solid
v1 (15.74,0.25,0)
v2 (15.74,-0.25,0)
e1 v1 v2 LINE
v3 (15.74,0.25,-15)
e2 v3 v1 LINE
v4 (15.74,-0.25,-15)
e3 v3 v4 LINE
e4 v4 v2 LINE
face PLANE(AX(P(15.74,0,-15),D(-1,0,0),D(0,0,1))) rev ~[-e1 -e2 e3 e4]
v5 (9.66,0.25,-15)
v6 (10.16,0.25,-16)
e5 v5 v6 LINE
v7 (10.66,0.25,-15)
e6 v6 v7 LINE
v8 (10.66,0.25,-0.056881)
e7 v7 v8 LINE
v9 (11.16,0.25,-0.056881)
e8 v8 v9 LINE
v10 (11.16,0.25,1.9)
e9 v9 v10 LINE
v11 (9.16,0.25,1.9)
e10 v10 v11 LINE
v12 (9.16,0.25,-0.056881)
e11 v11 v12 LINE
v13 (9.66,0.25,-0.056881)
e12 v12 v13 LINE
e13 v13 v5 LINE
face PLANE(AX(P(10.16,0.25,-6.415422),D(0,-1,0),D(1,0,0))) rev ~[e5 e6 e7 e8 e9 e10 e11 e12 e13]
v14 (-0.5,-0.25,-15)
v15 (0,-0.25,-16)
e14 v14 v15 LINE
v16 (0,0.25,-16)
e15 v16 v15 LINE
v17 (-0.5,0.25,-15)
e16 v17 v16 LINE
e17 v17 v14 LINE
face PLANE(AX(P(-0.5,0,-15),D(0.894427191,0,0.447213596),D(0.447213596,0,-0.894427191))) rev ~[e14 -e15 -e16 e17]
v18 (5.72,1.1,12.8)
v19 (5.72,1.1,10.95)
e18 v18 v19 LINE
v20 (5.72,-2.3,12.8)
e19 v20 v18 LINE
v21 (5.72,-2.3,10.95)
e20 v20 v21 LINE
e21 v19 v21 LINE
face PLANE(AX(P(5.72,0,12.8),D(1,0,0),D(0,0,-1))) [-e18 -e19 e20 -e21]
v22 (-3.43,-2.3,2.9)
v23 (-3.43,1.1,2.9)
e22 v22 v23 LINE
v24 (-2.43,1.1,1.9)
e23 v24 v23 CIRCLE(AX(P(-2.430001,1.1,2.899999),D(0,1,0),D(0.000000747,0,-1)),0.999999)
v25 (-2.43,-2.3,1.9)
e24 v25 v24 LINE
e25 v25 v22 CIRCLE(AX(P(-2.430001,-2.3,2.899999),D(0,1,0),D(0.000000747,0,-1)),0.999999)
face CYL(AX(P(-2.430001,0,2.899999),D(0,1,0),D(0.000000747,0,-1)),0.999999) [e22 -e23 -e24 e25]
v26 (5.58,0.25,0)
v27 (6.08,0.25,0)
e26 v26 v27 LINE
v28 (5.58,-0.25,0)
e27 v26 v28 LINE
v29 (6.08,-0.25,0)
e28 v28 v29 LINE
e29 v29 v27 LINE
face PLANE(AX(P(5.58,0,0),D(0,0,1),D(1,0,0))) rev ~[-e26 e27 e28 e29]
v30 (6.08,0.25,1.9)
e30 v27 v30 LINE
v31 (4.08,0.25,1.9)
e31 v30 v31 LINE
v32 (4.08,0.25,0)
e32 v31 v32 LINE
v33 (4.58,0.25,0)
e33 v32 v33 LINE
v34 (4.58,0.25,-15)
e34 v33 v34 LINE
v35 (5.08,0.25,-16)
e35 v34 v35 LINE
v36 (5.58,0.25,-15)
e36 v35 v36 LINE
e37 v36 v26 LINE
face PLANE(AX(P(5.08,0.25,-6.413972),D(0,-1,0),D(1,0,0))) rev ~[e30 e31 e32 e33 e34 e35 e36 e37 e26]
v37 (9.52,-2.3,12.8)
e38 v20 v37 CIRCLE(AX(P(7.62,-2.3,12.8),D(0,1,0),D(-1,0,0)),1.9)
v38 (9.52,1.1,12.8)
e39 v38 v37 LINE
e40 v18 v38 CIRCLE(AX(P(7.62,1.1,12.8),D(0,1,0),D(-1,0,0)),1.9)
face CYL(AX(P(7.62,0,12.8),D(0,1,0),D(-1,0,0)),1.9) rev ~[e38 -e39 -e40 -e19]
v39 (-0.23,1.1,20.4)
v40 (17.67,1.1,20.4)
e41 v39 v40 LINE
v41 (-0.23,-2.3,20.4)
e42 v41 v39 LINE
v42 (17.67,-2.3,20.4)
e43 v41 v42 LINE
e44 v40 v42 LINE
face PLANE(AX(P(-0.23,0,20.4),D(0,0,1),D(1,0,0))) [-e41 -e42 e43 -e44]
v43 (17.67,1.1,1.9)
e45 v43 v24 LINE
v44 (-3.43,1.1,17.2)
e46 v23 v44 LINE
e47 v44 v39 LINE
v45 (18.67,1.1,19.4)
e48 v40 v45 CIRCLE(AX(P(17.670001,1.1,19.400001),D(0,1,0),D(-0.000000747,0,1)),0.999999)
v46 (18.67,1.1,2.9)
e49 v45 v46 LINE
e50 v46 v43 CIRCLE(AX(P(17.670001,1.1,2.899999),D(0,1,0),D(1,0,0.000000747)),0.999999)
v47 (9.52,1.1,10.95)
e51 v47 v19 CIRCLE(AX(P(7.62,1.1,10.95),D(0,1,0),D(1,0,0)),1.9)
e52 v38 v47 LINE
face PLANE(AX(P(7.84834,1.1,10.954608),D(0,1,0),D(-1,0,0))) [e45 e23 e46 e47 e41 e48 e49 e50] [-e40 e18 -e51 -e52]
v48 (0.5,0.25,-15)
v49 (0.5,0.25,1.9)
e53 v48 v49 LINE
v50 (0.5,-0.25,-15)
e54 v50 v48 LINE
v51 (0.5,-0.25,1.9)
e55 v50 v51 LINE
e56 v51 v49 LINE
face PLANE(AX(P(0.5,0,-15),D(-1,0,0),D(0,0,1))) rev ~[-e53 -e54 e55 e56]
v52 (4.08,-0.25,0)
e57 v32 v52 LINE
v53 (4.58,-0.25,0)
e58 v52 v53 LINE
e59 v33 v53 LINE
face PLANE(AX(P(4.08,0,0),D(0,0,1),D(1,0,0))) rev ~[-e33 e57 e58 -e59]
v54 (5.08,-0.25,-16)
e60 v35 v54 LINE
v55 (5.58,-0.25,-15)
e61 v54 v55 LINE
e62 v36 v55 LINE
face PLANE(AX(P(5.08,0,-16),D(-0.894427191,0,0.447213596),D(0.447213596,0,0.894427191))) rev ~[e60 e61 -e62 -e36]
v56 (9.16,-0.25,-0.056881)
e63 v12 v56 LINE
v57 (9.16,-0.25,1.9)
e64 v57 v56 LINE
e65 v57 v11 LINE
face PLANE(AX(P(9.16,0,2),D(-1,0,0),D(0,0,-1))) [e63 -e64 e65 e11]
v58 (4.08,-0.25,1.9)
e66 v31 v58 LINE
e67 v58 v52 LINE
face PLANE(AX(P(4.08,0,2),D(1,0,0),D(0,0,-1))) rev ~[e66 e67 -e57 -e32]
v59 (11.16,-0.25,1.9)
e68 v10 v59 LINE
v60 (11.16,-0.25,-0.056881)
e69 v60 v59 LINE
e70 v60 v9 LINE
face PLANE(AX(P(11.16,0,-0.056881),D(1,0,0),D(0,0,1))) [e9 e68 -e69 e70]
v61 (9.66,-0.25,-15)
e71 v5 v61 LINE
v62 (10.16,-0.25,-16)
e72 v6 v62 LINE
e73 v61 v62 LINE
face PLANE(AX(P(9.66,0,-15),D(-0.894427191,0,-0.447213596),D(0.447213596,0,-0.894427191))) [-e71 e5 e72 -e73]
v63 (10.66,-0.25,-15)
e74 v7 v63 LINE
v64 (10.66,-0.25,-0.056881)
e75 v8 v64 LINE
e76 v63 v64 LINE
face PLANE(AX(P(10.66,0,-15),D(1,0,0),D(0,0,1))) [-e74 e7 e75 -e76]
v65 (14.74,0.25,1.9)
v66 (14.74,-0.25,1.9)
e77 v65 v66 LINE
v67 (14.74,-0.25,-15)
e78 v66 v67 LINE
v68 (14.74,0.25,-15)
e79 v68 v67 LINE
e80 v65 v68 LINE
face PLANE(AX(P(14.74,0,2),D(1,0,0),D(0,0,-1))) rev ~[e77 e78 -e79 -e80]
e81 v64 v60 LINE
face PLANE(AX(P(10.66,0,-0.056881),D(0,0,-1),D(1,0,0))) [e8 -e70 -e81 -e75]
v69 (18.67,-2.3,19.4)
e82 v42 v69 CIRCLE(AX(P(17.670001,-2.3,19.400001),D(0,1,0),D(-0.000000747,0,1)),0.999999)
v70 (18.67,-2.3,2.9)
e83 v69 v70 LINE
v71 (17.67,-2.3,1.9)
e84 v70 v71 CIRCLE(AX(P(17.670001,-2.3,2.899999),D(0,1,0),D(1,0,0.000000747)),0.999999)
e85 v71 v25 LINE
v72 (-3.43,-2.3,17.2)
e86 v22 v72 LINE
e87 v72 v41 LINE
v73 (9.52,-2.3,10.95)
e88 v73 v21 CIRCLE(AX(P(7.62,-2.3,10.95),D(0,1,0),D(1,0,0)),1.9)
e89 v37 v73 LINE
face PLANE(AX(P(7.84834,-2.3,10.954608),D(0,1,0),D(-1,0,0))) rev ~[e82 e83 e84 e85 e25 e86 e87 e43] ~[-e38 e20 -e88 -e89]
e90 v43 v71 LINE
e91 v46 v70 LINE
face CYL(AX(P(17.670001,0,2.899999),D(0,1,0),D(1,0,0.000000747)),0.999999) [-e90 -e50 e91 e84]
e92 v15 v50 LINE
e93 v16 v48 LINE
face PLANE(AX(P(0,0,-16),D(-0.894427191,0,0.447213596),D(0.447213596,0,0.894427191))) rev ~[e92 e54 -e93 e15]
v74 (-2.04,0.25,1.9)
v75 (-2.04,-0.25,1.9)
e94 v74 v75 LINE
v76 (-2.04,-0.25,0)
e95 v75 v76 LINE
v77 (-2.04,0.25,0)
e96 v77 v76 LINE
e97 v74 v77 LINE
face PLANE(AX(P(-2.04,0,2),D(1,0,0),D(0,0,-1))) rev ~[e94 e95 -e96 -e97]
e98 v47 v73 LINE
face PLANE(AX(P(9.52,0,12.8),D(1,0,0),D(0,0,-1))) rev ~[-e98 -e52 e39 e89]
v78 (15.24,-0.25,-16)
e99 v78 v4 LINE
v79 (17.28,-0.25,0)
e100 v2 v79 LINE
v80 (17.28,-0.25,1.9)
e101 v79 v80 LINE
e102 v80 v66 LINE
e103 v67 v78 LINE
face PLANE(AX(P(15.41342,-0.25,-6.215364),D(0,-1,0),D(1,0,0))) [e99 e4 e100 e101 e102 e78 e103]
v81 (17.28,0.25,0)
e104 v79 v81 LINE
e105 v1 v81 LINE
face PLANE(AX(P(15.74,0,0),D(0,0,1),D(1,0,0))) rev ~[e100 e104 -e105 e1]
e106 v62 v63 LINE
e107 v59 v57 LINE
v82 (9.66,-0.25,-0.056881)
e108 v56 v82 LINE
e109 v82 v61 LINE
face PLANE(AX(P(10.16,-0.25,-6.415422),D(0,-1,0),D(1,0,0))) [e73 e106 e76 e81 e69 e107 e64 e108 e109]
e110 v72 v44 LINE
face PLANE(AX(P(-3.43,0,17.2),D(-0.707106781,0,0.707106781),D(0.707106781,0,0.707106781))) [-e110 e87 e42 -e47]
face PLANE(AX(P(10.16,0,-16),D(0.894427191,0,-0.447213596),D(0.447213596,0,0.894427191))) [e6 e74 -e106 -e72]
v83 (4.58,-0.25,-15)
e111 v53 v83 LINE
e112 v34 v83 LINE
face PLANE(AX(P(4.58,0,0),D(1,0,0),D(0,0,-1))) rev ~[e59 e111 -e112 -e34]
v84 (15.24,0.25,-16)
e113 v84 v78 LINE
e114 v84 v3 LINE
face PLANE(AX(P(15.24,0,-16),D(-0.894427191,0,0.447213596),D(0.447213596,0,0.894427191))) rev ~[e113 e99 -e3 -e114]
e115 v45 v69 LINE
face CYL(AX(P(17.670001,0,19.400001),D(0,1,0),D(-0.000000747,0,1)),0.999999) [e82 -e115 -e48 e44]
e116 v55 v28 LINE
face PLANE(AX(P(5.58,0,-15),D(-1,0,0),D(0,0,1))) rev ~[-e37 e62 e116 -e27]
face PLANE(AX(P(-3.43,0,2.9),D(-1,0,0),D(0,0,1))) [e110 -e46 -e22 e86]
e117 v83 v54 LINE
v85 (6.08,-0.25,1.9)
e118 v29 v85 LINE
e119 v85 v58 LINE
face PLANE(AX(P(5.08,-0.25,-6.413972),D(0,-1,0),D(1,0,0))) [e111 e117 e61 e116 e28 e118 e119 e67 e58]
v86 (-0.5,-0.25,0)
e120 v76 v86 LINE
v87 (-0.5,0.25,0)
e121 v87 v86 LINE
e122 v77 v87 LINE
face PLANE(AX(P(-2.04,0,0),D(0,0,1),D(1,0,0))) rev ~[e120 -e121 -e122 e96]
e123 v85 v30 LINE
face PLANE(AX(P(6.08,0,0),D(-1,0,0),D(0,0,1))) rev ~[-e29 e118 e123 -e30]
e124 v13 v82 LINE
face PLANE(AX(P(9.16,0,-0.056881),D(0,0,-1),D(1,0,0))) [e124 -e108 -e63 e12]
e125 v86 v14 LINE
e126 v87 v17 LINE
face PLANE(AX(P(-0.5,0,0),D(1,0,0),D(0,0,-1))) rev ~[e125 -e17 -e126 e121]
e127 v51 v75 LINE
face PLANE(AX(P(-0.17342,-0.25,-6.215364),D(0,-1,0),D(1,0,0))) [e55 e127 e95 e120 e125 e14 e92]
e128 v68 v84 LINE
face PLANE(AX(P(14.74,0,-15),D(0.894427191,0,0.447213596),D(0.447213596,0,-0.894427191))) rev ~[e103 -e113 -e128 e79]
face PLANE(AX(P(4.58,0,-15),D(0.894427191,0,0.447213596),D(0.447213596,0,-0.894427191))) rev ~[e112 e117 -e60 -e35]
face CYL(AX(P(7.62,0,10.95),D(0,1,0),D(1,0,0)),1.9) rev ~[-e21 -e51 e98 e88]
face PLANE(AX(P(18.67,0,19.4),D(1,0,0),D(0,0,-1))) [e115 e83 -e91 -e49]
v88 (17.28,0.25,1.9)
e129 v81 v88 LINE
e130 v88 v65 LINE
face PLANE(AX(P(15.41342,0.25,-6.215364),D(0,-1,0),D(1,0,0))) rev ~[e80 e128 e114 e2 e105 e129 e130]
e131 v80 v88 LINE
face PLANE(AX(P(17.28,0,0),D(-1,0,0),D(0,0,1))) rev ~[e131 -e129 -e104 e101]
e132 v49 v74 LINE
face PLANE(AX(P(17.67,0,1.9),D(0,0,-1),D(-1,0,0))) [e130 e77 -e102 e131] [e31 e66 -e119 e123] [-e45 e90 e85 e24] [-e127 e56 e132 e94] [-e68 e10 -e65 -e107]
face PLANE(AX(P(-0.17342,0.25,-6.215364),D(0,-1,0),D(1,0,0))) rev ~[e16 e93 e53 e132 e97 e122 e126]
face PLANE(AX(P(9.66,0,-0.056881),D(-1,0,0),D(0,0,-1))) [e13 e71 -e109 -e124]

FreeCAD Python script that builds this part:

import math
import FreeCAD as App
import Part
import Sketcher
Q = App.Units.Quantity

doc = App.newDocument("Part")
body = doc.addObject("PartDesign::Body", "Body")
body.AllowCompound = True

# Sketch on XZ plane
sketch1 = body.newObject("Sketcher::SketchObject", "Sketch")
sketch1.AttachmentSupport = (doc.getObject("XZ_Plane"), [""])
sketch1.MapMode = "FlatFace"
sketch1.addGeometry(Part.LineSegment(App.Vector(-2, 2, 0), App.Vector(-2, 0, 0)), False)
sketch1.addGeometry(Part.LineSegment(App.Vector(-2, 0, 0), App.Vector(-0.5, 0, 0)), False)
sketch1.addGeometry(Part.LineSegment(App.Vector(-0.5, 0, 0), App.Vector(-0.5, -15, 0)), False)
sketch1.addGeometry(Part.LineSegment(App.Vector(-0.5, -15, 0), App.Vector(0, -16, 0)), False)
sketch1.addGeometry(Part.LineSegment(App.Vector(0, -16, 0), App.Vector(0.5, -15, 0)), False)
sketch1.addGeometry(Part.LineSegment(App.Vector(0.5, -15, 0), App.Vector(0.5, 2, 0)), False)
sketch1.addGeometry(Part.LineSegment(App.Vector(0.5, 2, 0), App.Vector(-2, 2, 0)), False)
sketch1.addGeometry(Part.LineSegment(App.Vector(14.7, 2, 0), App.Vector(14.7, -15, 0)), False)
sketch1.addGeometry(Part.LineSegment(App.Vector(14.7, -15, 0), App.Vector(15.2, -16, 0)), False)
sketch1.addGeometry(Part.LineSegment(App.Vector(15.2, -16, 0), App.Vector(15.7, -15, 0)), False)
sketch1.addGeometry(Part.LineSegment(App.Vector(15.7, -15, 0), App.Vector(15.7, 0, 0)), False)
sketch1.addGeometry(Part.LineSegment(App.Vector(15.7, 0, 0), App.Vector(17.3, 0, 0)), False)
sketch1.addGeometry(Part.LineSegment(App.Vector(17.3, 0, 0), App.Vector(17.3, 2, 0)), False)
sketch1.addGeometry(Part.LineSegment(App.Vector(17.3, 2, 0), App.Vector(14.7, 2, 0)), False)
sketch1.addGeometry(Part.LineSegment(App.Vector(4.1, 2, 0), App.Vector(4.1, 0, 0)), False)
sketch1.addGeometry(Part.LineSegment(App.Vector(4.1, 0, 0), App.Vector(4.6, 0, 0)), False)
sketch1.addGeometry(Part.LineSegment(App.Vector(4.6, 0, 0), App.Vector(4.6, -15, 0)), False)
sketch1.addGeometry(Part.LineSegment(App.Vector(4.6, -15, 0), App.Vector(5.1, -16, 0)), False)
sketch1.addGeometry(Part.LineSegment(App.Vector(5.1, -16, 0), App.Vector(5.6, -15, 0)), False)
sketch1.addGeometry(Part.LineSegment(App.Vector(5.6, -15, 0), App.Vector(5.6, 0, 0)), False)
sketch1.addGeometry(Part.LineSegment(App.Vector(5.6, 0, 0), App.Vector(6.1, 0, 0)), False)
sketch1.addGeometry(Part.LineSegment(App.Vector(6.1, 0, 0), App.Vector(6.1, 2, 0)), False)
sketch1.addGeometry(Part.LineSegment(App.Vector(6.1, 2, 0), App.Vector(4.1, 2, 0)), False)
sketch1.addGeometry(Part.LineSegment(App.Vector(9.2, 2, 0), App.Vector(9.2, -0.1, 0)), False)
sketch1.addGeometry(Part.LineSegment(App.Vector(9.2, -0.1, 0), App.Vector(9.7, -0.1, 0)), False)
sketch1.addGeometry(Part.LineSegment(App.Vector(9.7, -0.1, 0), App.Vector(9.7, -15, 0)), False)
sketch1.addGeometry(Part.LineSegment(App.Vector(9.7, -15, 0), App.Vector(10.2, -16, 0)), False)
sketch1.addGeometry(Part.LineSegment(App.Vector(10.2, -16, 0), App.Vector(10.7, -15, 0)), False)
sketch1.addGeometry(Part.LineSegment(App.Vector(10.7, -15, 0), App.Vector(10.7, -0.1, 0)), False)
sketch1.addGeometry(Part.LineSegment(App.Vector(10.7, -0.1, 0), App.Vector(11.2, -0.1, 0)), False)
sketch1.addGeometry(Part.LineSegment(App.Vector(11.2, -0.1, 0), App.Vector(11.2, 2, 0)), False)
sketch1.addGeometry(Part.LineSegment(App.Vector(11.2, 2, 0), App.Vector(9.2, 2, 0)), False)
sketch1.addConstraint(Sketcher.Constraint("Coincident", 0, 2, 1, 1))
sketch1.addConstraint(Sketcher.Constraint("Coincident", 1, 2, 2, 1))
sketch1.addConstraint(Sketcher.Constraint("Coincident", 2, 2, 3, 1))
sketch1.addConstraint(Sketcher.Constraint("Coincident", 3, 2, 4, 1))
sketch1.addConstraint(Sketcher.Constraint("Coincident", 4, 2, 5, 1))
sketch1.addConstraint(Sketcher.Constraint("Coincident", 5, 2, 6, 1))
sketch1.addConstraint(Sketcher.Constraint("Coincident", 6, 2, 0, 1))
sketch1.addConstraint(Sketcher.Constraint("Coincident", 7, 2, 8, 1))
sketch1.addConstraint(Sketcher.Constraint("Coincident", 8, 2, 9, 1))
sketch1.addConstraint(Sketcher.Constraint("Coincident", 9, 2, 10, 1))
sketch1.addConstraint(Sketcher.Constraint("Coincident", 10, 2, 11, 1))
sketch1.addConstraint(Sketcher.Constraint("Coincident", 11, 2, 12, 1))
sketch1.addConstraint(Sketcher.Constraint("Coincident", 12, 2, 13, 1))
sketch1.addConstraint(Sketcher.Constraint("Coincident", 13, 2, 7, 1))
sketch1.addConstraint(Sketcher.Constraint("Coincident", 14, 2, 15, 1))
sketch1.addConstraint(Sketcher.Constraint("Coincident", 15, 2, 16, 1))
sketch1.addConstraint(Sketcher.Constraint("Coincident", 16, 2, 17, 1))
sketch1.addConstraint(Sketcher.Constraint("Coincident", 17, 2, 18, 1))
sketch1.addConstraint(Sketcher.Constraint("Coincident", 18, 2, 19, 1))
sketch1.addConstraint(Sketcher.Constraint("Coincident", 19, 2, 20, 1))
sketch1.addConstraint(Sketcher.Constraint("Coincident", 20, 2, 21, 1))
sketch1.addConstraint(Sketcher.Constraint("Coincident", 21, 2, 22, 1))
sketch1.addConstraint(Sketcher.Constraint("Coincident", 22, 2, 14, 1))
sketch1.addConstraint(Sketcher.Constraint("Coincident", 23, 2, 24, 1))
sketch1.addConstraint(Sketcher.Constraint("Coincident", 24, 2, 25, 1))
sketch1.addConstraint(Sketcher.Constraint("Coincident", 25, 2, 26, 1))
sketch1.addConstraint(Sketcher.Constraint("Coincident", 26, 2, 27, 1))
sketch1.addConstraint(Sketcher.Constraint("Coincident", 27, 2, 28, 1))
sketch1.addConstraint(Sketcher.Constraint("Coincident", 28, 2, 29, 1))
sketch1.addConstraint(Sketcher.Constraint("Coincident", 29, 2, 30, 1))
sketch1.addConstraint(Sketcher.Constraint("Coincident", 30, 2, 31, 1))
sketch1.addConstraint(Sketcher.Constraint("Coincident", 31, 2, 23, 1))
sketch1.addConstraint(Sketcher.Constraint("Vertical", 0))
sketch1.addConstraint(Sketcher.Constraint("Horizontal", 1))
sketch1.addConstraint(Sketcher.Constraint("Vertical", 2))
sketch1.addConstraint(Sketcher.Constraint("Vertical", 5))
sketch1.addConstraint(Sketcher.Constraint("Horizontal", 6))
sketch1.addConstraint(Sketcher.Constraint("Vertical", 7))
sketch1.addConstraint(Sketcher.Constraint("Vertical", 10))
sketch1.addConstraint(Sketcher.Constraint("Horizontal", 11))
sketch1.addConstraint(Sketcher.Constraint("Vertical", 12))
sketch1.addConstraint(Sketcher.Constraint("Horizontal", 13))
sketch1.addConstraint(Sketcher.Constraint("Vertical", 14))
sketch1.addConstraint(Sketcher.Constraint("Horizontal", 15))
sketch1.addConstraint(Sketcher.Constraint("Vertical", 16))
sketch1.addConstraint(Sketcher.Constraint("Vertical", 19))
sketch1.addConstraint(Sketcher.Constraint("Horizontal", 20))
sketch1.addConstraint(Sketcher.Constraint("Vertical", 21))
sketch1.addConstraint(Sketcher.Constraint("Horizontal", 22))
sketch1.addConstraint(Sketcher.Constraint("Vertical", 23))
sketch1.addConstraint(Sketcher.Constraint("Horizontal", 24))
sketch1.addConstraint(Sketcher.Constraint("Vertical", 25))
sketch1.addConstraint(Sketcher.Constraint("Vertical", 28))
sketch1.addConstraint(Sketcher.Constraint("Horizontal", 29))
sketch1.addConstraint(Sketcher.Constraint("Vertical", 30))
sketch1.addConstraint(Sketcher.Constraint("Horizontal", 31))
sketch1.addConstraint(Sketcher.Constraint("Symmetric", 2, 2, 4, 2, -2))
sketch1.addConstraint(Sketcher.Constraint("PointOnObject", 0, 2, -1))
sketch1.addConstraint(Sketcher.Constraint("PointOnObject", 3, 2, -2))
sketch1.addConstraint(Sketcher.Constraint("PointOnObject", 10, 2, -1))
sketch1.addConstraint(Sketcher.Constraint("PointOnObject", 14, 2, -1))
sketch1.addConstraint(Sketcher.Constraint("PointOnObject", 19, 2, -1))
sketch1.addConstraint(Sketcher.Constraint("Parallel", 3, 8))
sketch1.addConstraint(Sketcher.Constraint("Parallel", 4, 9))
sketch1.addConstraint(Sketcher.Constraint("Parallel", 8, 17))
sketch1.addConstraint(Sketcher.Constraint("Parallel", 9, 18))
sketch1.addConstraint(Sketcher.Constraint("Parallel", 17, 26))
sketch1.addConstraint(Sketcher.Constraint("Parallel", 18, 27))
sketch1.addConstraint(Sketcher.Constraint("Horizontal", 4, 2, 7, 2))
sketch1.addConstraint(Sketcher.Constraint("Horizontal", 3, 2, 8, 2))
sketch1.addConstraint(Sketcher.Constraint("Horizontal", 7, 2, 9, 2))
sketch1.addConstraint(Sketcher.Constraint("Horizontal", 6, 2, 12, 2))
sketch1.addConstraint(Sketcher.Constraint("Horizontal", 9, 2, 16, 2))
sketch1.addConstraint(Sketcher.Constraint("Horizontal", 8, 2, 17, 2))
sketch1.addConstraint(Sketcher.Constraint("Horizontal", 16, 2, 18, 2))
sketch1.addConstraint(Sketcher.Constraint("Horizontal", 13, 2, 21, 2))
sketch1.addConstraint(Sketcher.Constraint("Horizontal", 18, 2, 25, 2))
sketch1.addConstraint(Sketcher.Constraint("Horizontal", 17, 2, 26, 2))
sketch1.addConstraint(Sketcher.Constraint("Horizontal", 25, 2, 27, 2))
sketch1.addConstraint(Sketcher.Constraint("Horizontal", 24, 2, 28, 2))
sketch1.addConstraint(Sketcher.Constraint("Horizontal", 22, 2, 30, 2))
sketch1.addConstraint(Sketcher.Constraint("Equal", 1, 11))
sketch1.addConstraint(Sketcher.Constraint("Equal", 15, 20))
sketch1.addConstraint(Sketcher.Constraint("Equal", 20, 24))
sketch1.addConstraint(Sketcher.Constraint("Equal", 24, 29))
sketch1.addConstraint(Sketcher.Constraint("Equal", 31, 0))
sketch1.addConstraint(Sketcher.Constraint("DistanceX", 22, 2, 22, 1, 2.0))
sketch1.addConstraint(Sketcher.Constraint("DistanceY", 2, 2, 2, 1, 15.0))
sketch1.addConstraint(Sketcher.Constraint("DistanceX", 15, 1, 15, 2, 0.5))
sketch1.addConstraint(Sketcher.Constraint("DistanceY", 3, 2, -1, 1, 16.0))
sketch1.addConstraint(Sketcher.Constraint("DistanceX", 1, 1, 1, 2, 1.54))
sketch1.addConstraint(Sketcher.Constraint("DistanceX", -1, 1, 7, 2, 14.74))
sketch1.addConstraint(Sketcher.Constraint("DistanceX", -1, 1, 14, 2, 4.08))
sketch1.addConstraint(Sketcher.Constraint("DistanceX", -1, 1, 23, 2, 9.16))
sketch1.addConstraint(Sketcher.Constraint("DistanceY", 23, 2, 23, 1, 2.056881))
pad1 = body.newObject("PartDesign::Pad", "Pad")
pad1.Profile = sketch1
pad1.Length = 0.5
pad1.Midplane = True
body2 = doc.addObject("PartDesign::Body", "Body001")

# Sketch on XZ plane
sketch2 = body2.newObject("Sketcher::SketchObject", "Sketch001")
sketch2.AttachmentSupport = (doc.getObject("XZ_Plane001"), [""])
sketch2.MapMode = "FlatFace"
sketch2.addGeometry(Part.LineSegment(App.Vector(17.7, 1.9, 0), App.Vector(-2.4, 1.9, 0)), False)
sketch2.addGeometry(Part.ArcOfCircle(Part.Circle(App.Vector(-2.4, 2.9, 0), App.Vector(0, 0, 1), 1), math.radians(180), math.radians(270)), False)
sketch2.addGeometry(Part.LineSegment(App.Vector(-3.4, 2.9, 0), App.Vector(-3.4, 17.2, 0)), False)
sketch2.addGeometry(Part.LineSegment(App.Vector(-3.4, 17.2, 0), App.Vector(-0.2, 20.4, 0)), False)
sketch2.addGeometry(Part.LineSegment(App.Vector(-0.2, 20.4, 0), App.Vector(17.7, 20.4, 0)), False)
sketch2.addGeometry(Part.ArcOfCircle(Part.Circle(App.Vector(17.7, 19.4, 0), App.Vector(0, 0, 1), 1), math.radians(0), math.radians(90)), False)
sketch2.addGeometry(Part.LineSegment(App.Vector(18.7, 19.4, 0), App.Vector(18.7, 2.9, 0)), False)
sketch2.addGeometry(Part.ArcOfCircle(Part.Circle(App.Vector(17.7, 2.9, 0), App.Vector(0, 0, 1), 1), math.radians(-90), math.radians(0)), False)
sketch2.addGeometry(Part.ArcOfCircle(Part.Circle(App.Vector(7.6, 12.8, 0), App.Vector(0, 0, 1), 1.9), math.radians(0), math.radians(180)), False)
sketch2.addGeometry(Part.LineSegment(App.Vector(5.7, 12.8, 0), App.Vector(5.7, 10.9, 0)), False)
sketch2.addGeometry(Part.ArcOfCircle(Part.Circle(App.Vector(7.6, 10.9, 0), App.Vector(0, 0, 1), 1.9), math.radians(180), math.radians(360)), False)
sketch2.addGeometry(Part.LineSegment(App.Vector(9.5, 10.9, 0), App.Vector(9.5, 12.8, 0)), False)
sketch2.addConstraint(Sketcher.Constraint("Tangent", 0, 2, 1, 2))
sketch2.addConstraint(Sketcher.Constraint("Tangent", 1, 1, 2, 1))
sketch2.addConstraint(Sketcher.Constraint("Coincident", 2, 2, 3, 1))
sketch2.addConstraint(Sketcher.Constraint("Coincident", 3, 2, 4, 1))
sketch2.addConstraint(Sketcher.Constraint("Tangent", 4, 2, 5, 2))
sketch2.addConstraint(Sketcher.Constraint("Tangent", 5, 1, 6, 1))
sketch2.addConstraint(Sketcher.Constraint("Tangent", 6, 2, 7, 2))
sketch2.addConstraint(Sketcher.Constraint("Tangent", 7, 1, 0, 1))
sketch2.addConstraint(Sketcher.Constraint("Tangent", 8, 2, 9, 1))
sketch2.addConstraint(Sketcher.Constraint("Tangent", 9, 2, 10, 1))
sketch2.addConstraint(Sketcher.Constraint("Tangent", 10, 2, 11, 1))
sketch2.addConstraint(Sketcher.Constraint("Tangent", 11, 2, 8, 1))
sketch2.addConstraint(Sketcher.Constraint("Horizontal", 0))
sketch2.addConstraint(Sketcher.Constraint("Vertical", 2))
sketch2.addConstraint(Sketcher.Constraint("Horizontal", 4))
sketch2.addConstraint(Sketcher.Constraint("Vertical", 6))
sketch2.addConstraint(Sketcher.Constraint("Vertical", 9))
sketch2.addConstraint(Sketcher.Constraint("Vertical", 11))
sketch2.addConstraint(Sketcher.Constraint("Equal", 1, 5))
sketch2.addConstraint(Sketcher.Constraint("Equal", 5, 7))
sketch2.addConstraint(Sketcher.Constraint("Radius", 1, 0.999999))
sketch2.addConstraint(Sketcher.Constraint("Radius", 8, 1.9))
sketch2.addConstraint(Sketcher.Constraint("Angle", 3, Q("45 deg")))
sketch2.addConstraint(Sketcher.Constraint("DistanceX", 0, 2, 0, 1, 20.1))
sketch2.addConstraint(Sketcher.Constraint("DistanceX", 4, 1, 4, 2, 17.9))
sketch2.addConstraint(Sketcher.Constraint("DistanceY", 2, 1, 2, 2, 14.3))
sketch2.addConstraint(Sketcher.Constraint("DistanceY", 9, 2, 9, 1, 1.85))
sketch2.addConstraint(Sketcher.Constraint("DistanceY", -1, 1, 1, 3, 2.899999))
sketch2.addConstraint(Sketcher.Constraint("DistanceY", -1, 1, 8, 3, 12.8))
sketch2.addConstraint(Sketcher.Constraint("DistanceX", 1, 3, -1, 1, 2.430001))
sketch2.addConstraint(Sketcher.Constraint("DistanceX", -1, 1, 8, 3, 7.62))
pad2 = body2.newObject("PartDesign::Pad", "Pad001")
pad2.Profile = sketch2
pad2.Type = "TwoLengths"
pad2.Length = 1.1
pad2.Length2 = 2.3
pad2.Reversed = True
doc.recompute()

boolean = body2.newObject("PartDesign::Boolean", "Boolean")
boolean.Type = "Fuse"
boolean.addObjects([body])

doc.recompute()
